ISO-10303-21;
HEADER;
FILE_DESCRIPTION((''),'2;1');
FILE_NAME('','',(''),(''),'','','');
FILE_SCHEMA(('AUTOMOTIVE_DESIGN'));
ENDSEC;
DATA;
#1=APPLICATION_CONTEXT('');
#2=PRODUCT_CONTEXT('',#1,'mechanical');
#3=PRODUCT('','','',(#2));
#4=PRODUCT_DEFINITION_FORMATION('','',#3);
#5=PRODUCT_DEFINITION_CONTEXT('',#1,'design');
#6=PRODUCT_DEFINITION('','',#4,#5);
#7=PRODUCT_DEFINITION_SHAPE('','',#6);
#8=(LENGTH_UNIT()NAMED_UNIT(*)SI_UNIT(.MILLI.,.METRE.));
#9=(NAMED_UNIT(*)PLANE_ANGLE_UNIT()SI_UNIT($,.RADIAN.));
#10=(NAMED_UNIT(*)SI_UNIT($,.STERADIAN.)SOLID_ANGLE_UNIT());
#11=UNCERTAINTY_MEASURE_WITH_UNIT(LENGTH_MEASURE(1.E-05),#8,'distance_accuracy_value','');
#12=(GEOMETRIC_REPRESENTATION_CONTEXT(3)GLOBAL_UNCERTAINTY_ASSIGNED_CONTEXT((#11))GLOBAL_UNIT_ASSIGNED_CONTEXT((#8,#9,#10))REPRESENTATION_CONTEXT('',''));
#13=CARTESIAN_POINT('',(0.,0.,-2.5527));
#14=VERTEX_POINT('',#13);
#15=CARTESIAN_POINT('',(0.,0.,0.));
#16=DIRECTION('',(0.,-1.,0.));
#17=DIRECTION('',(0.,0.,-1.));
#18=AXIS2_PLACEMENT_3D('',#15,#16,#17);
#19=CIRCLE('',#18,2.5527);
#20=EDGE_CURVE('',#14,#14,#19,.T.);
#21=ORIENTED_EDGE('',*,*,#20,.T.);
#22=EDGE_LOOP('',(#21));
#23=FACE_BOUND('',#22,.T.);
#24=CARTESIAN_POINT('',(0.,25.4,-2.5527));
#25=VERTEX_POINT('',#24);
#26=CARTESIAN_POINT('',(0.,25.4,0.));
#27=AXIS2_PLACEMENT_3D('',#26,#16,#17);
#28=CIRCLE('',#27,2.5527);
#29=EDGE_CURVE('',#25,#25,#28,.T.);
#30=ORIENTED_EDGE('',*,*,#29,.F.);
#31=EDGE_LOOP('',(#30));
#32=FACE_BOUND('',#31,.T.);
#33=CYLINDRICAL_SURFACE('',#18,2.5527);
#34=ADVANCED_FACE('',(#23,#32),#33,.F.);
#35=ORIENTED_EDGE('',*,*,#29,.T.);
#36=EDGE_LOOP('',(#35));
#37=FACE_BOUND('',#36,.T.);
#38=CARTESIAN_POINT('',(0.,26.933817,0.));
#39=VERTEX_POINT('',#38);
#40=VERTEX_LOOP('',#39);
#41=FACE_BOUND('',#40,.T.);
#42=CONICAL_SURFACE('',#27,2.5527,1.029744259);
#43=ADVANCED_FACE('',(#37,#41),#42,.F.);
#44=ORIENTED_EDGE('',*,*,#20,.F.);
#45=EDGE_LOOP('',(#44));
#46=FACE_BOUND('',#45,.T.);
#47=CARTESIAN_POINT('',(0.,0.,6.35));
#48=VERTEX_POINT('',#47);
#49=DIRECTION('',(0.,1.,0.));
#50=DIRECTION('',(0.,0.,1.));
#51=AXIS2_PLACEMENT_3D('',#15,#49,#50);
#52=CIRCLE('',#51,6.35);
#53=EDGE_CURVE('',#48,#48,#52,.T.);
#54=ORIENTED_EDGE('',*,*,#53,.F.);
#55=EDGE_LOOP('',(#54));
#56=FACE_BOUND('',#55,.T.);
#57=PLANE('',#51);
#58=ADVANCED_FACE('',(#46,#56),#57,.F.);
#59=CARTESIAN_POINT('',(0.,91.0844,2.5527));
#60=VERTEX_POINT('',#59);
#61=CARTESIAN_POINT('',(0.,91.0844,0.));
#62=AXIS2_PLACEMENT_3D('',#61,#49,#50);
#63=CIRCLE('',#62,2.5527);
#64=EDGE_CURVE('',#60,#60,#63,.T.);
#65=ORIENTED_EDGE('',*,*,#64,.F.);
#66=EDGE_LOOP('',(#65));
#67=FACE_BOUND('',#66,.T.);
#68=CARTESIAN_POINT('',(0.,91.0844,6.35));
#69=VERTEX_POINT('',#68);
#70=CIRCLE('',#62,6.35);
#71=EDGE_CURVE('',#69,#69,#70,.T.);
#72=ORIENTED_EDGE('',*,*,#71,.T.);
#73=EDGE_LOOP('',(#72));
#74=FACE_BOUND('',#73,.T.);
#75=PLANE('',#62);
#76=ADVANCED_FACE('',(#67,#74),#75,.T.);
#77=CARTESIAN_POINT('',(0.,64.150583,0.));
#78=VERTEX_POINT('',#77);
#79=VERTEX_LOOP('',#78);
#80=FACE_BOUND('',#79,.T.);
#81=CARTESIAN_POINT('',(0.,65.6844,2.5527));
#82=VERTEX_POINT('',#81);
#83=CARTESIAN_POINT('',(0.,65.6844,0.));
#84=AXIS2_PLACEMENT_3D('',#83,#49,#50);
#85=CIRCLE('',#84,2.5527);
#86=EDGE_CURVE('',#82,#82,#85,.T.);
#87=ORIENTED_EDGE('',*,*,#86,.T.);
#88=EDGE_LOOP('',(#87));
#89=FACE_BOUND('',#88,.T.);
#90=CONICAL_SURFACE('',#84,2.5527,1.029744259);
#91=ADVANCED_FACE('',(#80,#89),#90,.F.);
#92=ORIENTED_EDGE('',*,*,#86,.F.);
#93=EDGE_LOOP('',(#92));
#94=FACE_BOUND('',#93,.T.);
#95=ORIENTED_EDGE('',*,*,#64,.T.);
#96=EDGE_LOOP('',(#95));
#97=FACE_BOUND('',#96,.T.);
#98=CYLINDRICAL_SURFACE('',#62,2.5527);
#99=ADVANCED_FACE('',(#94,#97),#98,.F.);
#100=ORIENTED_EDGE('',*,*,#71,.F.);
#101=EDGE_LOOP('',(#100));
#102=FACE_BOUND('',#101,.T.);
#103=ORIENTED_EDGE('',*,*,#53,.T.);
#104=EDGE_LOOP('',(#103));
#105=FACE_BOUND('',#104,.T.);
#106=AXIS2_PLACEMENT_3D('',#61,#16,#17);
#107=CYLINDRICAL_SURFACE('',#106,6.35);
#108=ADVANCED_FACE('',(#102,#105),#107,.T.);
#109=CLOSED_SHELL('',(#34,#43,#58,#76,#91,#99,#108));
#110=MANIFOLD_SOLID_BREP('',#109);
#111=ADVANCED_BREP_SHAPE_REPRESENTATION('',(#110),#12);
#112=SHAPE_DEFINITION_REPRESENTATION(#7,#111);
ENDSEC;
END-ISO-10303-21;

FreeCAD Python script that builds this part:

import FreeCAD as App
import Part
import Sketcher
Q = App.Units.Quantity

doc = App.newDocument("Part")
body = doc.addObject("PartDesign::Body", "Body")

# Sketch on XZ plane
sketch1 = body.newObject("Sketcher::SketchObject", "Sketch")
sketch1.AttachmentSupport = (doc.getObject("XZ_Plane"), [""])
sketch1.MapMode = "FlatFace"
sketch1.addGeometry(Part.Circle(App.Vector(0, 0, 0), App.Vector(0, 0, 1), 6.35), False)
sketch1.addConstraint([
    Sketcher.Constraint("Coincident", 0, 3, -1, 1),
    Sketcher.Constraint("Diameter", 0, Q("0.5 in")),
])
pad1 = body.newObject("PartDesign::Pad", "Pad")
pad1.Profile = sketch1
pad1.Length = Q("3.586 in")
pad1.Reversed = True

# Sketch on XZ plane
sketch2 = body.newObject("Sketcher::SketchObject", "Sketch001")
sketch2.AttachmentSupport = (doc.getObject("XZ_Plane"), [""])
sketch2.MapMode = "FlatFace"
sketch2.AttachmentOffset = App.Placement(App.Vector(0, 0, -3.586 * 25.4), App.Rotation())
sketch2.addGeometry(Part.Circle(App.Vector(0, 0, 0), App.Vector(0, 0, 1), 2.5527), False)
sketch2.addConstraint([
    Sketcher.Constraint("Coincident", 0, 3, -1, 1),
    Sketcher.Constraint("Diameter", 0, Q("0.201 in")),
])
doc.recompute()
hole = body.newObject("PartDesign::Hole", "Hole")
hole.Profile = sketch2
hole.ThreadType = "None"
hole.Diameter = Q("0.201 in")
hole.DepthType = "Dimension"
hole.Depth = Q("1 in")
hole.DrillPoint = "Angled"
hole.DrillPointAngle = 118
hole.Reversed = True

# Sketch on XZ plane
sketch3 = body.newObject("Sketcher::SketchObject", "Sketch002")
sketch3.AttachmentSupport = (doc.getObject("XZ_Plane"), [""])
sketch3.MapMode = "FlatFace"
sketch3.addGeometry(Part.Circle(App.Vector(0, 0, 0), App.Vector(0, 0, 1), 2.5527), False)
sketch3.addConstraint([
    Sketcher.Constraint("Coincident", 0, 3, -1, 1),
    Sketcher.Constraint("Diameter", 0, Q("0.201 in")),
])
doc.recompute()
hole2 = body.newObject("PartDesign::Hole", "Hole001")
hole2.Profile = sketch3
hole2.ThreadType = "None"
hole2.Diameter = Q("0.201 in")
hole2.DepthType = "Dimension"
hole2.Depth = Q("1 in")
hole2.DrillPoint = "Angled"
hole2.DrillPointAngle = 118

doc.recompute()
